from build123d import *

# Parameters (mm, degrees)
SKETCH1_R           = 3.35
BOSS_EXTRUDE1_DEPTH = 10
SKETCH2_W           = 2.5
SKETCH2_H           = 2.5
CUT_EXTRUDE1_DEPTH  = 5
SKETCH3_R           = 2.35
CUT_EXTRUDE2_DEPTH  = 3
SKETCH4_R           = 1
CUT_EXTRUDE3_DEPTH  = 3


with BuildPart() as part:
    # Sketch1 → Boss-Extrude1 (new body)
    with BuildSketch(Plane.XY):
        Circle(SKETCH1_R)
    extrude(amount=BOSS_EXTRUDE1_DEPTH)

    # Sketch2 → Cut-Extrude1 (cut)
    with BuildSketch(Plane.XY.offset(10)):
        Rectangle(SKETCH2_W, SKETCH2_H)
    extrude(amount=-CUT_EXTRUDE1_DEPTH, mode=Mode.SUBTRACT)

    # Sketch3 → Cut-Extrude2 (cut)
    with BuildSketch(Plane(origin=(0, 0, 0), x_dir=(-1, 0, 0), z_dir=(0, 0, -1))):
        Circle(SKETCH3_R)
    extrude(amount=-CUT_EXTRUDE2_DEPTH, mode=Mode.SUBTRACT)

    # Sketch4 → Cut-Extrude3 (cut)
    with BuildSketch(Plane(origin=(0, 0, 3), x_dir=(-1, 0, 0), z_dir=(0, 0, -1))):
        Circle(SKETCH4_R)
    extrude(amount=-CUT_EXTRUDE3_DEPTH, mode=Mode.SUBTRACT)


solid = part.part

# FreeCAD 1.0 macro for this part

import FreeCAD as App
import Part
import Sketcher

doc = App.newDocument("Part")
body = doc.addObject("PartDesign::Body", "Body")

sketch1 = body.newObject("Sketcher::SketchObject", "Sketch")
sketch1.AttachmentSupport = (doc.getObject("XY_Plane"), [""])
sketch1.MapMode = "FlatFace"
sketch1.addGeometry(Part.Circle(App.Vector(0, 0, 0), App.Vector(0, 0, 1), 3.4), False)
sketch1.addConstraint(Sketcher.Constraint("Coincident", 0, 3, -1, 1))
sketch1.addConstraint(Sketcher.Constraint("Diameter", 0, 6.7))
pad1 = body.newObject("PartDesign::Pad", "Pad")
pad1.Profile = sketch1
pad1.Length = 10

sketch2 = body.newObject("Sketcher::SketchObject", "Sketch001")
sketch2.AttachmentSupport = (doc.getObject("XY_Plane"), [""])
sketch2.MapMode = "FlatFace"
sketch2.AttachmentOffset = App.Placement(App.Vector(0, 0, 10), App.Rotation())
sketch2.addGeometry(Part.LineSegment(App.Vector(-1.2, 1.2, 0), App.Vector(-1.2, -1.2, 0)), False)
sketch2.addGeometry(Part.LineSegment(App.Vector(-1.2, -1.2, 0), App.Vector(1.2, -1.2, 0)), False)
sketch2.addGeometry(Part.LineSegment(App.Vector(1.2, -1.2, 0), App.Vector(1.2, 1.2, 0)), False)
sketch2.addGeometry(Part.LineSegment(App.Vector(1.2, 1.2, 0), App.Vector(-1.2, 1.2, 0)), False)
sketch2.addConstraint(Sketcher.Constraint("Coincident", 0, 2, 1, 1))
sketch2.addConstraint(Sketcher.Constraint("Coincident", 1, 2, 2, 1))
sketch2.addConstraint(Sketcher.Constraint("Coincident", 2, 2, 3, 1))
sketch2.addConstraint(Sketcher.Constraint("Coincident", 3, 2, 0, 1))
sketch2.addConstraint(Sketcher.Constraint("Vertical", 0))
sketch2.addConstraint(Sketcher.Constraint("Horizontal", 1))
sketch2.addConstraint(Sketcher.Constraint("Vertical", 2))
sketch2.addConstraint(Sketcher.Constraint("Horizontal", 3))
sketch2.addConstraint(Sketcher.Constraint("Symmetric", 0, 2, 2, 2, -1, 1))
sketch2.addConstraint(Sketcher.Constraint("Equal", 3, 0))
sketch2.addConstraint(Sketcher.Constraint("DistanceX", 1, 1, 1, 2, 2.5))
pocket1 = body.newObject("PartDesign::Pocket", "Pocket")
pocket1.Profile = sketch2
pocket1.Length = 5

sketch3 = body.newObject("Sketcher::SketchObject", "Sketch002")
sketch3.AttachmentSupport = (doc.getObject("XY_Plane"), [""])
sketch3.MapMode = "FlatFace"
sketch3.addGeometry(Part.Circle(App.Vector(0, 0, 0), App.Vector(0, 0, 1), 2.4), False)
sketch3.addConstraint(Sketcher.Constraint("Coincident", 0, 3, -1, 1))
sketch3.addConstraint(Sketcher.Constraint("Diameter", 0, 4.7))
pocket2 = body.newObject("PartDesign::Pocket", "Pocket001")
pocket2.Profile = sketch3
pocket2.Length = 3
pocket2.Reversed = True

sketch4 = body.newObject("Sketcher::SketchObject", "Sketch003")
sketch4.AttachmentSupport = (doc.getObject("XY_Plane"), [""])
sketch4.MapMode = "FlatFace"
sketch4.AttachmentOffset = App.Placement(App.Vector(0, 0, 3), App.Rotation())
sketch4.addGeometry(Part.Circle(App.Vector(0, 0, 0), App.Vector(0, 0, 1), 1), False)
sketch4.addConstraint(Sketcher.Constraint("Coincident", 0, 3, -1, 1))
sketch4.addConstraint(Sketcher.Constraint("Diameter", 0, 2.0))
pocket3 = body.newObject("PartDesign::Pocket", "Pocket002")
pocket3.Profile = sketch4
pocket3.Length = 3
pocket3.Reversed = True

doc.recompute()
